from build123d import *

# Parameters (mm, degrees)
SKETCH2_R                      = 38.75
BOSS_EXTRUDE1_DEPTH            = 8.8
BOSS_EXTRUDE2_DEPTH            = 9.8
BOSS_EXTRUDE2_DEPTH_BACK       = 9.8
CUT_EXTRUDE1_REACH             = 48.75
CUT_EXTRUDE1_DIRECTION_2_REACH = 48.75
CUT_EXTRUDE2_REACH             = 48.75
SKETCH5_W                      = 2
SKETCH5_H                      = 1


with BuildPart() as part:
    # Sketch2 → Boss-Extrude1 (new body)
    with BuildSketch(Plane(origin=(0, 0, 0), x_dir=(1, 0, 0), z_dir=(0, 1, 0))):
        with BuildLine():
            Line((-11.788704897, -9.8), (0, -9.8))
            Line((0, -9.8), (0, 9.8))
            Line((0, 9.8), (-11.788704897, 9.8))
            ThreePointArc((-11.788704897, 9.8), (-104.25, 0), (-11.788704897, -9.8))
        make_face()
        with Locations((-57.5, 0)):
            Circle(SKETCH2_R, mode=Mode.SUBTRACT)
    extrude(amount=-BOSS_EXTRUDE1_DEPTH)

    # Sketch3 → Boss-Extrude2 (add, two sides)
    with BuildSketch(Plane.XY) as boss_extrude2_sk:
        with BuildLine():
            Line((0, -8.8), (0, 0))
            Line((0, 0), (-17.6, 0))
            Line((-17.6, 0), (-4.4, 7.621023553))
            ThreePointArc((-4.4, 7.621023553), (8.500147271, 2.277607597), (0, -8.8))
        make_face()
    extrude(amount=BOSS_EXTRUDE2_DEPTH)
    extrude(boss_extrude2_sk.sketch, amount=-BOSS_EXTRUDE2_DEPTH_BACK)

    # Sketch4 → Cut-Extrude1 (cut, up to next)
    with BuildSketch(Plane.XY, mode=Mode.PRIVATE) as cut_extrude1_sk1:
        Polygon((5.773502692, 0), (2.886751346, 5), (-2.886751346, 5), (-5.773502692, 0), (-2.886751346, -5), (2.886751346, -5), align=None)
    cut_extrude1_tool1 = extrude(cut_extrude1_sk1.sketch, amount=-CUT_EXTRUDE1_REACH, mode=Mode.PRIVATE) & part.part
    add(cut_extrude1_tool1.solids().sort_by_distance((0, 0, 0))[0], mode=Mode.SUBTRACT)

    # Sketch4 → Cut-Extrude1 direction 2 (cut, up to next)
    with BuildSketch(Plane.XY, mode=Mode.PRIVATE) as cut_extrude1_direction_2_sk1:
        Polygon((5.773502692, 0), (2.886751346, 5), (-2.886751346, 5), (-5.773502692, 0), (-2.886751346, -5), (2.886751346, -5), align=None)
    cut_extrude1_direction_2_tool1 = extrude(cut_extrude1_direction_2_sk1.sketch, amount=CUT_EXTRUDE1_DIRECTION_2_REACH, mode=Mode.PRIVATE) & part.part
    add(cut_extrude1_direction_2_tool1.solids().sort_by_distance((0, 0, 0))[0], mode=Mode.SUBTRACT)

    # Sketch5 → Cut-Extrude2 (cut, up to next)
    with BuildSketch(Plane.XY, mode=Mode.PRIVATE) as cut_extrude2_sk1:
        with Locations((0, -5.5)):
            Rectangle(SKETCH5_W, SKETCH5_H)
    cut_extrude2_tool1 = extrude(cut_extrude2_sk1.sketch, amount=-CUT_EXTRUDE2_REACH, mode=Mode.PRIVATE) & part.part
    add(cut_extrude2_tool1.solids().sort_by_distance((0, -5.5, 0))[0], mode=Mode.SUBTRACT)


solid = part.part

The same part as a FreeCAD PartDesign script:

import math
import FreeCAD as App
import Part
import Sketcher
Q = App.Units.Quantity


def add_polygon(sketch, points):
    """Adds a closed chain of lines whose ends are joined by coincident constraints."""
    first, n = sketch.GeometryCount, len(points)
    for a, b in zip(points, points[1:] + points[:1]):
        sketch.addGeometry(Part.LineSegment(App.Vector(*a, 0), App.Vector(*b, 0)), False)
    for i in range(n):
        sketch.addConstraint(Sketcher.Constraint("Coincident", first + i, 2, first + (i + 1) % n, 1))

doc = App.newDocument("Part")
params = doc.addObject("Spreadsheet::Sheet", "Params")
for row, (alias, value) in enumerate([
    ("sketch1_diameter", "77.5 mm"),
    ("sketch1_radius", "46.75 mm"),
    ("sketch1_height", "19.6 mm"),
    ("pad1_length", "8.8 mm"),
    ("sketch2_radius", "8.8 mm"),
    ("pad2_length", "9.8 mm"),
    ("pad2_length2", "9.8 mm"),
    ("sketch5_width", "2 mm"),
    ("sketch5_height", "1 mm"),
], start=1):
    params.set(f"A{row}", alias)
    params.set(f"B{row}", "=" + value)
    params.setAlias(f"B{row}", alias)

body = doc.addObject("PartDesign::Body", "Body")

# Sketch on XZ plane
sketch1 = doc.addObject("Sketcher::SketchObject", "Sketch")
body.addObject(sketch1)
sketch1.AttachmentSupport = (doc.XZ_Plane, [""])
sketch1.MapMode = "FlatFace"
sketch1.addGeometry([
    Part.LineSegment(App.Vector(-11.788705, 9.8, 0), App.Vector(0, 9.8, 0)),  # 0
    Part.LineSegment(App.Vector(0, 9.8, 0), App.Vector(0, -9.8, 0)),  # 1
    Part.LineSegment(App.Vector(0, -9.8, 0), App.Vector(-11.788705, -9.8, 0)),  # 2
    Part.ArcOfCircle(Part.Circle(App.Vector(-57.5, 0, 0), App.Vector(0, 0, 1), 46.75), math.radians(12.100416), math.radians(347.899584)),  # 3
    Part.Circle(App.Vector(-57.5, 0, 0), App.Vector(0, 0, 1), 38.75),  # 4
], False)
sketch1.addConstraint([
    Sketcher.Constraint("Coincident", 0, 2, 1, 1),
    Sketcher.Constraint("Coincident", 1, 2, 2, 1),
    Sketcher.Constraint("Coincident", 2, 2, 3, 2),
    Sketcher.Constraint("Coincident", 3, 1, 0, 1),
    Sketcher.Constraint("Horizontal", 0),
    Sketcher.Constraint("Vertical", 1),
    Sketcher.Constraint("Horizontal", 2),
    Sketcher.Constraint("Coincident", 4, 3, 3, 3),
    Sketcher.Constraint("Symmetric", 0, 2, 1, 2, -1, 1),
    Sketcher.Constraint("PointOnObject", 3, 3, -1),
    Sketcher.Constraint("Diameter", 4, Q("77.5 mm")),
    Sketcher.Constraint("Radius", 3, Q("46.75 mm")),
    Sketcher.Constraint("DistanceY", 1, 2, 1, 1, Q("19.6 mm")),
    Sketcher.Constraint("DistanceX", 3, 3, -1, 1, Q("57.5 mm")),
])
sketch1.setExpression("Constraints[10]", "Params.sketch1_diameter")
sketch1.setExpression("Constraints[11]", "Params.sketch1_radius")
sketch1.setExpression("Constraints[12]", "Params.sketch1_height")
pad1 = doc.addObject("PartDesign::Pad", "Pad")
body.addObject(pad1)
pad1.Profile = sketch1
pad1.setExpression("Length", "Params.pad1_length")

# Sketch on XY plane
sketch2 = doc.addObject("Sketcher::SketchObject", "Sketch001")
body.addObject(sketch2)
sketch2.AttachmentSupport = (doc.XY_Plane, [""])
sketch2.MapMode = "FlatFace"
sketch2.addGeometry([
    Part.LineSegment(App.Vector(0, 0, 0), App.Vector(0, -8.8, 0)),
    Part.ArcOfCircle(Part.Circle(App.Vector(0, 0, 0), App.Vector(0, 0, 1), 8.8), math.radians(-90), math.radians(120)),
    Part.LineSegment(App.Vector(-4.4, 7.621024, 0), App.Vector(-17.6, 0, 0)),
    Part.LineSegment(App.Vector(-17.6, 0, 0), App.Vector(0, 0, 0)),
], False)
sketch2.addConstraint([
    Sketcher.Constraint("Coincident", 0, 2, 1, 1),
    Sketcher.Constraint("Tangent", 1, 2, 2, 1),
    Sketcher.Constraint("Coincident", 2, 2, 3, 1),
    Sketcher.Constraint("Coincident", 3, 2, 0, 1),
    Sketcher.Constraint("Vertical", 0),
    Sketcher.Constraint("Horizontal", 3),
    Sketcher.Constraint("Coincident", 1, 3, -1, 1),
    Sketcher.Constraint("Coincident", 3, 2, -1, 1),
    Sketcher.Constraint("Radius", 1, Q("8.8 mm")),
    Sketcher.Constraint("Angle", 2, Q("-150 deg")),
])
sketch2.setExpression("Constraints[8]", "Params.sketch2_radius")
pad2 = doc.addObject("PartDesign::Pad", "Pad001")
body.addObject(pad2)
pad2.Profile = sketch2
pad2.Type = "TwoLengths"
pad2.setExpression("Length", "Params.pad2_length")
pad2.setExpression("Length2", "Params.pad2_length2")

# Sketch on XY plane
sketch3 = doc.addObject("Sketcher::SketchObject", "Sketch002")
body.addObject(sketch3)
sketch3.AttachmentSupport = (doc.XY_Plane, [""])
sketch3.MapMode = "FlatFace"
add_polygon(sketch3, [(5.773503, 0), (2.886751, 5), (-2.886751, 5), (-5.773503, 0), (-2.886751, -5), (2.886751, -5)])  # lines 0-5
sketch3.addConstraint([
    Sketcher.Constraint("Horizontal", 1),
    Sketcher.Constraint("Horizontal", 4),
    Sketcher.Constraint("Symmetric", 0, 2, 3, 2, -1, 1),
    Sketcher.Constraint("Symmetric", 2, 2, 5, 2, -1, 1),
    Sketcher.Constraint("PointOnObject", 2, 2, -1),
    Sketcher.Constraint("Parallel", 2, 5),
    Sketcher.Constraint("Vertical", 1, 2, 3, 2),
    Sketcher.Constraint("Angle", 0, Q("120 deg")),
    Sketcher.Constraint("DistanceY", -1, 1, 0, 2, Q("5 mm")),
    Sketcher.Constraint("DistanceX", 1, 2, 1, 1, Q("5.773503 mm")),
])
pocket1 = doc.addObject("PartDesign::Pocket", "Pocket")
body.addObject(pocket1)
pocket1.Profile = sketch3
pocket1.Type = "UpToFirst"

# Sketch on XY plane
sketch4 = doc.addObject("Sketcher::SketchObject", "Sketch003")
body.addObject(sketch4)
sketch4.AttachmentSupport = (doc.XY_Plane, [""])
sketch4.MapMode = "FlatFace"
add_polygon(sketch4, [(5.773503, 0), (2.886751, 5), (-2.886751, 5), (-5.773503, 0), (-2.886751, -5), (2.886751, -5)])  # lines 0-5
sketch4.addConstraint([
    Sketcher.Constraint("Horizontal", 1),
    Sketcher.Constraint("Horizontal", 4),
    Sketcher.Constraint("Symmetric", 0, 2, 3, 2, -1, 1),
    Sketcher.Constraint("Symmetric", 2, 2, 5, 2, -1, 1),
    Sketcher.Constraint("PointOnObject", 2, 2, -1),
    Sketcher.Constraint("Parallel", 2, 5),
    Sketcher.Constraint("Vertical", 1, 2, 3, 2),
    Sketcher.Constraint("Angle", 0, Q("120 deg")),
    Sketcher.Constraint("DistanceY", -1, 1, 0, 2, Q("5 mm")),
    Sketcher.Constraint("DistanceX", 1, 2, 1, 1, Q("5.773503 mm")),
])
pocket2 = doc.addObject("PartDesign::Pocket", "Pocket001")
body.addObject(pocket2)
pocket2.Profile = sketch4
pocket2.Type = "UpToFirst"
pocket2.Reversed = True

# Sketch on XY plane
sketch5 = doc.addObject("Sketcher::SketchObject", "Sketch004")
body.addObject(sketch5)
sketch5.AttachmentSupport = (doc.XY_Plane, [""])
sketch5.MapMode = "FlatFace"
add_polygon(sketch5, [(-1, -5), (-1, -6), (1, -6), (1, -5)])  # lines 0-3
sketch5.addConstraint([
    Sketcher.Constraint("Vertical", 0),
    Sketcher.Constraint("Horizontal", 1),
    Sketcher.Constraint("Vertical", 2),
    Sketcher.Constraint("Horizontal", 3),
    Sketcher.Constraint("DistanceX", 1, 1, 1, 2, Q("2 mm")),
    Sketcher.Constraint("DistanceY", 0, 2, 0, 1, Q("1 mm")),
    Sketcher.Constraint("DistanceX", 0, 2, -1, 1, Q("1 mm")),
    Sketcher.Constraint("DistanceY", 0, 2, -1, 1, Q("6 mm")),
])
sketch5.setExpression("Constraints[8]", "Params.sketch5_width")
sketch5.setExpression("Constraints[9]", "Params.sketch5_height")
pocket3 = doc.addObject("PartDesign::Pocket", "Pocket002")
body.addObject(pocket3)
pocket3.Profile = sketch5
pocket3.Type = "UpToFirst"

doc.recompute()
